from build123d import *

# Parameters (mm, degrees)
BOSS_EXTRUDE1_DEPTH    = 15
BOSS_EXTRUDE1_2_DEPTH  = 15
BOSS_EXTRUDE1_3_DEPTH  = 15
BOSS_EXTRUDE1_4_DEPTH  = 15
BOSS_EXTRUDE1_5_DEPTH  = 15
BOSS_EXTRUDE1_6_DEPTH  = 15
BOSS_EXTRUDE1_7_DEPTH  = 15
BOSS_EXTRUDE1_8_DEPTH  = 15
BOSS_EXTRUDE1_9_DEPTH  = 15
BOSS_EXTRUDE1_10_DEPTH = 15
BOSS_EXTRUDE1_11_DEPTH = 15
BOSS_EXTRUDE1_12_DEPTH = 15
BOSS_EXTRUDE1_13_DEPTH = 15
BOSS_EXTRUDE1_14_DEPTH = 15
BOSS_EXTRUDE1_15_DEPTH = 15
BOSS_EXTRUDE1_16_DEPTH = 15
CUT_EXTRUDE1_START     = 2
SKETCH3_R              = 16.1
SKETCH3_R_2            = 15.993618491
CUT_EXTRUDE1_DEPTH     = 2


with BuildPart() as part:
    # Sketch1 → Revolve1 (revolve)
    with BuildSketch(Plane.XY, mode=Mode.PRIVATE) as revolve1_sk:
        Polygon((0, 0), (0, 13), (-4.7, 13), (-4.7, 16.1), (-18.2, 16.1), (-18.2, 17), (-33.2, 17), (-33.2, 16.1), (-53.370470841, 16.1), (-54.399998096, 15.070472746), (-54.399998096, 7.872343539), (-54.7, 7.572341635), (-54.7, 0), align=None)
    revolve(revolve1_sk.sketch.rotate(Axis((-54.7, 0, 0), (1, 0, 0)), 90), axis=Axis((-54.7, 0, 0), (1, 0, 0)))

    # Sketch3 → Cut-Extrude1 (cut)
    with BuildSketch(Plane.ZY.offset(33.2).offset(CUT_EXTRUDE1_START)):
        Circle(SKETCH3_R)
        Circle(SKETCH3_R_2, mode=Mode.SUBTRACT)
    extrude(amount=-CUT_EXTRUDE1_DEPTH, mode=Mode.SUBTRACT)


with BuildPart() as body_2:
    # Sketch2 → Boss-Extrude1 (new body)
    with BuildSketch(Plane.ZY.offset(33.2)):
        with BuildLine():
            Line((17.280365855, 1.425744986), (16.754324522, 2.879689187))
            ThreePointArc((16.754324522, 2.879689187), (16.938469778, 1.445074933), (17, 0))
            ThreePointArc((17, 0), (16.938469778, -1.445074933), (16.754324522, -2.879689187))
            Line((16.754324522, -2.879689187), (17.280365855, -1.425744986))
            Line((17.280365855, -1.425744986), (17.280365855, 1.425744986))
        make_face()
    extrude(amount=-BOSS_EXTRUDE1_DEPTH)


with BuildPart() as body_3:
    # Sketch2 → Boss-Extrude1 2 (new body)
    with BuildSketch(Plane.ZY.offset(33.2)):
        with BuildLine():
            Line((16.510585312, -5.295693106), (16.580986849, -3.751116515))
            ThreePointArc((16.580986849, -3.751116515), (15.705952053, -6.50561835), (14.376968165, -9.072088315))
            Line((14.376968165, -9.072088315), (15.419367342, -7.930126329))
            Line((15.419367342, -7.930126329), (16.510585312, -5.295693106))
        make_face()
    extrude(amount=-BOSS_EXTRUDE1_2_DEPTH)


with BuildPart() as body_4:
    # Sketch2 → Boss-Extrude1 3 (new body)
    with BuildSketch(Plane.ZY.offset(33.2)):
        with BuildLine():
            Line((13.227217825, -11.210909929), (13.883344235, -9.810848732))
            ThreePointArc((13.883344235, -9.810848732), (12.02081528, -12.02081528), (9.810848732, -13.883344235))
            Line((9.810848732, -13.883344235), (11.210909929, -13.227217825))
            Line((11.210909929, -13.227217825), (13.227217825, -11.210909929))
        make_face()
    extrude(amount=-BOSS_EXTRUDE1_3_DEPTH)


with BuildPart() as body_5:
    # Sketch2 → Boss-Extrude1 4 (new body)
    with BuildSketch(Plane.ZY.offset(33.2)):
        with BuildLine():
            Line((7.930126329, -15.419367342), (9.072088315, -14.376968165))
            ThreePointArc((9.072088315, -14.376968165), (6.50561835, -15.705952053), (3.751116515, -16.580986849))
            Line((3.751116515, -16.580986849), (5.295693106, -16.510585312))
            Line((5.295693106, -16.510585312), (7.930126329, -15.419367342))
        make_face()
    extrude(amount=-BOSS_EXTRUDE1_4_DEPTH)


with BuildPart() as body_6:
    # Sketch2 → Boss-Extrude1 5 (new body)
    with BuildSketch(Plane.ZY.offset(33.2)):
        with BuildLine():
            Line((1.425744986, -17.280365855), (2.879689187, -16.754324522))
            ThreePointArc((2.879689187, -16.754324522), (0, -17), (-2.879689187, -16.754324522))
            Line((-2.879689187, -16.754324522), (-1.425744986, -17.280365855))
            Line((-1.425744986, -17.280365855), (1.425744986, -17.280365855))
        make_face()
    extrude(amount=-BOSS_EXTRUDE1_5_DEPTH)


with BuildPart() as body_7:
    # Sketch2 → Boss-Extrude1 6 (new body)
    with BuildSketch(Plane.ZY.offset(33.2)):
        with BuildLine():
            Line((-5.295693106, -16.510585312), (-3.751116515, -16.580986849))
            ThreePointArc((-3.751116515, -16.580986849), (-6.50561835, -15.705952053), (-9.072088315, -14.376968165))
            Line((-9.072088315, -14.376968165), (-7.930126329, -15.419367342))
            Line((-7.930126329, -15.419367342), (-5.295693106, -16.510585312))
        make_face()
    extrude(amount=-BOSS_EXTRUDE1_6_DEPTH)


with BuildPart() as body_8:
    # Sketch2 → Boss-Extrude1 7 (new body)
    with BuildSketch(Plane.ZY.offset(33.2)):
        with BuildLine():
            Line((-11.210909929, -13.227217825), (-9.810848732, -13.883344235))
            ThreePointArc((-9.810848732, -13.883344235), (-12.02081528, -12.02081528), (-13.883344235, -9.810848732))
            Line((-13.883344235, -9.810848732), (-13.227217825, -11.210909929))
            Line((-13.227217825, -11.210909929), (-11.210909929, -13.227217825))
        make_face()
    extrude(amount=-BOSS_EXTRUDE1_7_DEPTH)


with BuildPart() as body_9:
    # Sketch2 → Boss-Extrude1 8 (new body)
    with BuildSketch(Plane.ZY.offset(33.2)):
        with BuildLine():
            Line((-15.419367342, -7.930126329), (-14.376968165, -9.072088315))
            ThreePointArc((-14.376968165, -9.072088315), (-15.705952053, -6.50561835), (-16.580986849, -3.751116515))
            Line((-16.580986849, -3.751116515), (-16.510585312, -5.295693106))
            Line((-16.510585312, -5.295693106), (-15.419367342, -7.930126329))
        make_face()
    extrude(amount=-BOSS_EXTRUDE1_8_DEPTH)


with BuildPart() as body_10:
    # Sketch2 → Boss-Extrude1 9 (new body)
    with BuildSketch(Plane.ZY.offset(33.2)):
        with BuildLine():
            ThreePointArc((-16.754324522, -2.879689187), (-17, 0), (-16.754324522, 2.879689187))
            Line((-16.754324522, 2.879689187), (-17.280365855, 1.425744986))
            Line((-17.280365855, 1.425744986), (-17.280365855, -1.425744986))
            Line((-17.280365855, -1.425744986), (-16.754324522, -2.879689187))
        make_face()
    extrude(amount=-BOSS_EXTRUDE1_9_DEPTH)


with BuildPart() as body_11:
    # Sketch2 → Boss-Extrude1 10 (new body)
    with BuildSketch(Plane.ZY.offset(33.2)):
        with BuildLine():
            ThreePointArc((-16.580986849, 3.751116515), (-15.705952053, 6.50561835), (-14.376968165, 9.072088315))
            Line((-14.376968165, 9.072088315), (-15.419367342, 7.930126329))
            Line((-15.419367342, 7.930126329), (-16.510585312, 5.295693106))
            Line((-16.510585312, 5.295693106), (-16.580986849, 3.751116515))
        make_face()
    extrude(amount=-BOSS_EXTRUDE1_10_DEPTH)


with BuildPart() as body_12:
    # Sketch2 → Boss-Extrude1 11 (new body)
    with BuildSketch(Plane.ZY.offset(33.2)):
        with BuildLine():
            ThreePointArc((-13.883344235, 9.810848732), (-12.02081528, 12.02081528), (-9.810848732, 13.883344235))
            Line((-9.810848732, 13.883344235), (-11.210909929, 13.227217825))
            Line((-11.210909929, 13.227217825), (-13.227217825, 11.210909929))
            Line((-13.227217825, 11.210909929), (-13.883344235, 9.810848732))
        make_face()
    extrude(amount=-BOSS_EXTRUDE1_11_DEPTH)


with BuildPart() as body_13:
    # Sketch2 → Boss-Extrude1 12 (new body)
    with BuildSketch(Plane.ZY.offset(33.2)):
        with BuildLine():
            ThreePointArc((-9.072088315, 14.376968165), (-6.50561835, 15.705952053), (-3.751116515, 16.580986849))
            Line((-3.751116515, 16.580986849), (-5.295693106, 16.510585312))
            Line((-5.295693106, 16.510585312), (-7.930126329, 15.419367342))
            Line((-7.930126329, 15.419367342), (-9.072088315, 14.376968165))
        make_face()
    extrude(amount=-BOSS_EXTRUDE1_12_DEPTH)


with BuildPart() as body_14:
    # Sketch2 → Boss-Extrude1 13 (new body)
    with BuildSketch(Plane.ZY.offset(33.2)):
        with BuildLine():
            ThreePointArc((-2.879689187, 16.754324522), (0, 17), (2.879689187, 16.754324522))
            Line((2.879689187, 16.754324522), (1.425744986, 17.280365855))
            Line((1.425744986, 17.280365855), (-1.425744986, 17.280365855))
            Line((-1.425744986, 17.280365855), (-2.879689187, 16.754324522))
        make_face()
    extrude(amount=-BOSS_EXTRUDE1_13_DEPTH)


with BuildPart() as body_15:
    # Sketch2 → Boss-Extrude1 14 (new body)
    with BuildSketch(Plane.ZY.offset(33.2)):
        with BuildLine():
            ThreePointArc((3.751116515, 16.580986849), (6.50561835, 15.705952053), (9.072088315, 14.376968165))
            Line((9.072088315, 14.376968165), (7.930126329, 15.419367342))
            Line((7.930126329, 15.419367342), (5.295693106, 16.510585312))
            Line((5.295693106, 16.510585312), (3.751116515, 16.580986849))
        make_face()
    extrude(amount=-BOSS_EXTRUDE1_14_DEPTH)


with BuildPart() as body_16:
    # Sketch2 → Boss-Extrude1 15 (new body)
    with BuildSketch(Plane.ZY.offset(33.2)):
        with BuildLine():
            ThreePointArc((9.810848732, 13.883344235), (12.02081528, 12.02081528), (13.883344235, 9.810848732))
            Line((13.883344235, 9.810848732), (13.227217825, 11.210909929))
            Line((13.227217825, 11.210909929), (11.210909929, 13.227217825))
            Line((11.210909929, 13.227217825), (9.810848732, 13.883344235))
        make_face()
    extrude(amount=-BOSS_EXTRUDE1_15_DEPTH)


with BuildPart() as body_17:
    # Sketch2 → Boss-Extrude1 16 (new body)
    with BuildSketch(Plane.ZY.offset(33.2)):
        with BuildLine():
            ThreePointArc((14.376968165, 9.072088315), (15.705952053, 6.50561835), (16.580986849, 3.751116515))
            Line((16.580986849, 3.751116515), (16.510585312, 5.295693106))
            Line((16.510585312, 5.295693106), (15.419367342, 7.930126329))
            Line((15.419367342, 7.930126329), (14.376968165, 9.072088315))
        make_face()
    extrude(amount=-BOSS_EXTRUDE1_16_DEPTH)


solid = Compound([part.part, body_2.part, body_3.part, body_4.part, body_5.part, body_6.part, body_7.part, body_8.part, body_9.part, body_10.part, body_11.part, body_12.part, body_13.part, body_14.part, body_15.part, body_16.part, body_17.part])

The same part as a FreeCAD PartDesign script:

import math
import FreeCAD as App
import Part
import Sketcher
from FreeCAD import Vector
Q = App.Units.Quantity


def add_polygon(sketch, points):
    """Adds a closed chain of lines whose ends are joined by coincident constraints."""
    first, n = sketch.GeometryCount, len(points)
    for a, b in zip(points, points[1:] + points[:1]):
        sketch.addGeometry(Part.LineSegment(App.Vector(*a, 0), App.Vector(*b, 0)), False)
    for i in range(n):
        sketch.addConstraint(Sketcher.Constraint("Coincident", first + i, 2, first + (i + 1) % n, 1))

doc = App.newDocument("Part")
body = doc.addObject("PartDesign::Body", "Body")

sketch1 = body.newObject("Sketcher::SketchObject", "Sketch")
sketch1.AttachmentSupport = (doc.getObject("XY_Plane"), [""])
sketch1.MapMode = "FlatFace"
add_polygon(sketch1, [(0, 0), (0, 13), (-4.7, 13), (-4.7, 16.1), (-18.2, 16.1), (-18.2, 17), (-33.2, 17), (-33.2, 16.1), (-53.37, 16.1), (-54.4, 15.07), (-54.4, 7.87), (-54.7, 7.57), (-54.7, 0)])
sketch1.addConstraint([
    Sketcher.Constraint("Vertical", 0),
    Sketcher.Constraint("Horizontal", 1),
    Sketcher.Constraint("Vertical", 2),
    Sketcher.Constraint("Horizontal", 3),
    Sketcher.Constraint("Vertical", 4),
    Sketcher.Constraint("Horizontal", 5),
    Sketcher.Constraint("Vertical", 6),
    Sketcher.Constraint("Horizontal", 7),
    Sketcher.Constraint("Vertical", 9),
    Sketcher.Constraint("Vertical", 11),
    Sketcher.Constraint("Horizontal", 12),
    Sketcher.Constraint("Coincident", 12, 2, -1, 1),
    Sketcher.Constraint("Parallel", 8, 10),
    Sketcher.Constraint("Horizontal", 3, 2, 6, 2),
    Sketcher.Constraint("DistanceX", 5, 2, 5, 1, Q("15 mm")),
    Sketcher.Constraint("DistanceY", 0, 1, 0, 2, Q("13 mm")),
    Sketcher.Constraint("Angle", 8, Q("-135 deg")),
    Sketcher.Constraint("DistanceX", 1, 2, 1, 1, Q("4.7 mm")),
    Sketcher.Constraint("DistanceX", 3, 2, 3, 1, Q("13.5 mm")),
    Sketcher.Constraint("DistanceX", 12, 1, 12, 2, Q("54.7 mm")),
    Sketcher.Constraint("DistanceY", 2, 1, 2, 2, Q("3.1 mm")),
    Sketcher.Constraint("DistanceY", 4, 1, 4, 2, Q("0.9 mm")),
    Sketcher.Constraint("DistanceX", 8, 2, -1, 1, Q("54.399998 mm")),
    Sketcher.Constraint("DistanceX", 7, 2, 7, 1, Q("20.170471 mm")),
    Sketcher.Constraint("DistanceY", 9, 2, 9, 1, Q("7.198129 mm")),
])
revolution = body.newObject("PartDesign::Revolution", "Revolution")
revolution.Profile = sketch1
revolution.ReferenceAxis = (sketch1, ["H_Axis"])
revolution.Angle = 360

sketch2 = body.newObject("Sketcher::SketchObject", "Sketch001")
sketch2.AttachmentSupport = (doc.getObject("YZ_Plane"), [""])
sketch2.MapMode = "FlatFace"
sketch2.AttachmentOffset = App.Placement(Vector(0, 0, -35.2), App.Rotation())
sketch2.addGeometry([
    Part.Circle(Vector(0, 0, 0), Vector(0, 0, 1), 16),
    Part.Circle(Vector(0, 0, 0), Vector(0, 0, 1), 16),
], False)
sketch2.addConstraint([
    Sketcher.Constraint("Coincident", 0, 3, -1, 1),
    Sketcher.Constraint("Coincident", 1, 3, -1, 1),
    Sketcher.Constraint("Diameter", 0, Q("32.2 mm")),
    Sketcher.Constraint("Diameter", 1, Q("31.987237 mm")),
])
pocket1 = body.newObject("PartDesign::Pocket", "Pocket")
pocket1.Profile = sketch2
pocket1.Length = 2
pocket1.Reversed = True
body2 = doc.addObject("PartDesign::Body", "Body001")

sketch3 = body2.newObject("Sketcher::SketchObject", "Sketch002")
sketch3.AttachmentSupport = (doc.getObject("YZ_Plane001"), [""])
sketch3.MapMode = "FlatFace"
sketch3.AttachmentOffset = App.Placement(Vector(0, 0, -33.2), App.Rotation())
sketch3.addGeometry([
    Part.LineSegment(Vector(1.4, 17.3, 0), Vector(2.9, 16.8, 0)),
    Part.ArcOfCircle(Part.Circle(Vector(0, 0, 0), Vector(0, 0, 1), 17), math.radians(80.25), math.radians(90)),
    Part.ArcOfCircle(Part.Circle(Vector(0, 0, 0), Vector(0, 0, 1), 17), math.radians(90), math.radians(99.75)),
    Part.LineSegment(Vector(-2.9, 16.8, 0), Vector(-1.4, 17.3, 0)),
    Part.LineSegment(Vector(-1.4, 17.3, 0), Vector(1.4, 17.3, 0)),
], False)
sketch3.addConstraint([
    Sketcher.Constraint("Coincident", 0, 2, 1, 1),
    Sketcher.Constraint("Tangent", 1, 2, 2, 1),
    Sketcher.Constraint("Coincident", 2, 2, 3, 1),
    Sketcher.Constraint("Coincident", 3, 2, 4, 1),
    Sketcher.Constraint("Coincident", 4, 2, 0, 1),
    Sketcher.Constraint("Horizontal", 4),
    Sketcher.Constraint("Coincident", 1, 3, -1, 1),
    Sketcher.Constraint("Equal", 1, 2),
    Sketcher.Constraint("PointOnObject", 1, 2, -2),
    Sketcher.Constraint("Horizontal", 0, 2, 2, 2),
    Sketcher.Constraint("Equal", 0, 3),
    Sketcher.Constraint("Radius", 1, Q("17 mm")),
    Sketcher.Constraint("DistanceX", 4, 1, 4, 2, Q("2.85149 mm")),
    Sketcher.Constraint("Distance", 0, Q("1.54618 mm")),
    Sketcher.Constraint("DistanceX", -1, 1, 0, 2, Q("2.879689 mm")),
])
pad1 = body2.newObject("PartDesign::Pad", "Pad")
pad1.Profile = sketch3
pad1.Length = 15
body3 = doc.addObject("PartDesign::Body", "Body002")

sketch4 = body3.newObject("Sketcher::SketchObject", "Sketch003")
sketch4.AttachmentSupport = (doc.getObject("YZ_Plane002"), [""])
sketch4.MapMode = "FlatFace"
sketch4.AttachmentOffset = App.Placement(Vector(0, 0, -33.2), App.Rotation())
sketch4.addGeometry([
    Part.LineSegment(Vector(-5.3, 16.5, 0), Vector(-3.8, 16.6, 0)),
    Part.ArcOfCircle(Part.Circle(Vector(0, 0, 0), Vector(0, 0, 1), 17), math.radians(102.75), math.radians(122.25)),
    Part.LineSegment(Vector(-9.1, 14.4, 0), Vector(-7.9, 15.4, 0)),
    Part.LineSegment(Vector(-7.9, 15.4, 0), Vector(-5.3, 16.5, 0)),
], False)
sketch4.addConstraint([
    Sketcher.Constraint("Coincident", 0, 2, 1, 1),
    Sketcher.Constraint("Coincident", 1, 2, 2, 1),
    Sketcher.Constraint("Coincident", 2, 2, 3, 1),
    Sketcher.Constraint("Coincident", 3, 2, 0, 1),
    Sketcher.Constraint("Coincident", 1, 3, -1, 1),
    Sketcher.Constraint("Equal", 0, 2),
    Sketcher.Constraint("Radius", 1, Q("17 mm")),
    Sketcher.Constraint("Angle", 3, Q("22.5 deg")),
    Sketcher.Constraint("DistanceY", 1, 2, 2, 2, Q("1.042399 mm")),
    Sketcher.Constraint("DistanceY", 3, 2, 0, 2, Q("0.070402 mm")),
    Sketcher.Constraint("Distance", 0, Q("1.54618 mm")),
    Sketcher.Constraint("Distance", 3, Q("2.85149 mm")),
])
pad2 = body3.newObject("PartDesign::Pad", "Pad001")
pad2.Profile = sketch4
pad2.Length = 15
body4 = doc.addObject("PartDesign::Body", "Body003")

sketch5 = body4.newObject("Sketcher::SketchObject", "Sketch004")
sketch5.AttachmentSupport = (doc.getObject("YZ_Plane003"), [""])
sketch5.MapMode = "FlatFace"
sketch5.AttachmentOffset = App.Placement(Vector(0, 0, -33.2), App.Rotation())
sketch5.addGeometry([
    Part.LineSegment(Vector(-11.2, 13.2, 0), Vector(-9.8, 13.9, 0)),
    Part.ArcOfCircle(Part.Circle(Vector(0, 0, 0), Vector(0, 0, 1), 17), math.radians(125.25), math.radians(144.75)),
    Part.LineSegment(Vector(-13.9, 9.8, 0), Vector(-13.2, 11.2, 0)),
    Part.LineSegment(Vector(-13.2, 11.2, 0), Vector(-11.2, 13.2, 0)),
], False)
sketch5.addConstraint([
    Sketcher.Constraint("Coincident", 0, 2, 1, 1),
    Sketcher.Constraint("Coincident", 1, 2, 2, 1),
    Sketcher.Constraint("Coincident", 2, 2, 3, 1),
    Sketcher.Constraint("Coincident", 3, 2, 0, 1),
    Sketcher.Constraint("Coincident", 1, 3, -1, 1),
    Sketcher.Constraint("Equal", 0, 2),
    Sketcher.Constraint("Radius", 1, Q("17 mm")),
    Sketcher.Constraint("Angle", 3, Q("45 deg")),
    Sketcher.Constraint("Distance", 0, Q("1.54618 mm")),
    Sketcher.Constraint("Distance", 3, Q("2.85149 mm")),
    Sketcher.Constraint("DistanceX", 0, 2, -1, 1, Q("9.810849 mm")),
    Sketcher.Constraint("DistanceY", -1, 1, 1, 2, Q("9.810849 mm")),
])
pad3 = body4.newObject("PartDesign::Pad", "Pad002")
pad3.Profile = sketch5
pad3.Length = 15
body5 = doc.addObject("PartDesign::Body", "Body004")

sketch6 = body5.newObject("Sketcher::SketchObject", "Sketch005")
sketch6.AttachmentSupport = (doc.getObject("YZ_Plane004"), [""])
sketch6.MapMode = "FlatFace"
sketch6.AttachmentOffset = App.Placement(Vector(0, 0, -33.2), App.Rotation())
sketch6.addGeometry([
    Part.LineSegment(Vector(-15.4, 7.9, 0), Vector(-14.4, 9.1, 0)),
    Part.ArcOfCircle(Part.Circle(Vector(0, 0, 0), Vector(0, 0, 1), 17), math.radians(147.75), math.radians(167.25)),
    Part.LineSegment(Vector(-16.6, 3.8, 0), Vector(-16.5, 5.3, 0)),
    Part.LineSegment(Vector(-16.5, 5.3, 0), Vector(-15.4, 7.9, 0)),
], False)
sketch6.addConstraint([
    Sketcher.Constraint("Coincident", 0, 2, 1, 1),
    Sketcher.Constraint("Coincident", 1, 2, 2, 1),
    Sketcher.Constraint("Coincident", 2, 2, 3, 1),
    Sketcher.Constraint("Coincident", 3, 2, 0, 1),
    Sketcher.Constraint("Coincident", 1, 3, -1, 1),
    Sketcher.Constraint("Equal", 0, 2),
    Sketcher.Constraint("Radius", 1, Q("17 mm")),
    Sketcher.Constraint("Angle", 3, Q("67.5 deg")),
    Sketcher.Constraint("DistanceX", 1, 2, 2, 2, Q("0.070402 mm")),
    Sketcher.Constraint("DistanceX", 3, 2, 0, 2, Q("1.042399 mm")),
    Sketcher.Constraint("Distance", 0, Q("1.54618 mm")),
    Sketcher.Constraint("Distance", 3, Q("2.85149 mm")),
])
pad4 = body5.newObject("PartDesign::Pad", "Pad003")
pad4.Profile = sketch6
pad4.Length = 15
body6 = doc.addObject("PartDesign::Body", "Body005")

sketch7 = body6.newObject("Sketcher::SketchObject", "Sketch006")
sketch7.AttachmentSupport = (doc.getObject("YZ_Plane005"), [""])
sketch7.MapMode = "FlatFace"
sketch7.AttachmentOffset = App.Placement(Vector(0, 0, -33.2), App.Rotation())
sketch7.addGeometry([
    Part.LineSegment(Vector(-17.3, 1.4, 0), Vector(-16.8, 2.9, 0)),
    Part.ArcOfCircle(Part.Circle(Vector(0, 0, 0), Vector(0, 0, 1), 17), math.radians(170.25), math.radians(189.75)),
    Part.LineSegment(Vector(-16.8, -2.9, 0), Vector(-17.3, -1.4, 0)),
    Part.LineSegment(Vector(-17.3, -1.4, 0), Vector(-17.3, 1.4, 0)),
], False)
sketch7.addConstraint([
    Sketcher.Constraint("Coincident", 0, 2, 1, 1),
    Sketcher.Constraint("Coincident", 1, 2, 2, 1),
    Sketcher.Constraint("Coincident", 2, 2, 3, 1),
    Sketcher.Constraint("Coincident", 3, 2, 0, 1),
    Sketcher.Constraint("Vertical", 3),
    Sketcher.Constraint("Coincident", 1, 3, -1, 1),
    Sketcher.Constraint("Vertical", 0, 2, 1, 2),
    Sketcher.Constraint("Equal", 0, 2),
    Sketcher.Constraint("Radius", 1, Q("17 mm")),
    Sketcher.Constraint("DistanceY", 3, 1, 3, 2, Q("2.85149 mm")),
    Sketcher.Constraint("Distance", 0, Q("1.54618 mm")),
    Sketcher.Constraint("DistanceY", -1, 1, 0, 2, Q("2.879689 mm")),
])
pad5 = body6.newObject("PartDesign::Pad", "Pad004")
pad5.Profile = sketch7
pad5.Length = 15
body7 = doc.addObject("PartDesign::Body", "Body006")

sketch8 = body7.newObject("Sketcher::SketchObject", "Sketch007")
sketch8.AttachmentSupport = (doc.getObject("YZ_Plane006"), [""])
sketch8.MapMode = "FlatFace"
sketch8.AttachmentOffset = App.Placement(Vector(0, 0, -33.2), App.Rotation())
sketch8.addGeometry([
    Part.LineSegment(Vector(-16.5, -5.3, 0), Vector(-16.6, -3.8, 0)),
    Part.ArcOfCircle(Part.Circle(Vector(0, 0, 0), Vector(0, 0, 1), 17), math.radians(-167.25), math.radians(-147.75)),
    Part.LineSegment(Vector(-14.4, -9.1, 0), Vector(-15.4, -7.9, 0)),
    Part.LineSegment(Vector(-15.4, -7.9, 0), Vector(-16.5, -5.3, 0)),
], False)
sketch8.addConstraint([
    Sketcher.Constraint("Coincident", 0, 2, 1, 1),
    Sketcher.Constraint("Coincident", 1, 2, 2, 1),
    Sketcher.Constraint("Coincident", 2, 2, 3, 1),
    Sketcher.Constraint("Coincident", 3, 2, 0, 1),
    Sketcher.Constraint("Coincident", 1, 3, -1, 1),
    Sketcher.Constraint("Equal", 0, 2),
    Sketcher.Constraint("Radius", 1, Q("17 mm")),
    Sketcher.Constraint("Angle", 3, Q("112.5 deg")),
    Sketcher.Constraint("DistanceX", 2, 2, 1, 2, Q("1.042399 mm")),
    Sketcher.Constraint("DistanceX", 0, 2, 3, 2, Q("0.070402 mm")),
    Sketcher.Constraint("Distance", 0, Q("1.54618 mm")),
    Sketcher.Constraint("Distance", 3, Q("2.85149 mm")),
])
pad6 = body7.newObject("PartDesign::Pad", "Pad005")
pad6.Profile = sketch8
pad6.Length = 15
body8 = doc.addObject("PartDesign::Body", "Body007")

sketch9 = body8.newObject("Sketcher::SketchObject", "Sketch008")
sketch9.AttachmentSupport = (doc.getObject("YZ_Plane007"), [""])
sketch9.MapMode = "FlatFace"
sketch9.AttachmentOffset = App.Placement(Vector(0, 0, -33.2), App.Rotation())
sketch9.addGeometry([
    Part.LineSegment(Vector(-13.2, -11.2, 0), Vector(-13.9, -9.8, 0)),
    Part.ArcOfCircle(Part.Circle(Vector(0, 0, 0), Vector(0, 0, 1), 17), math.radians(-144.75), math.radians(-125.25)),
    Part.LineSegment(Vector(-9.8, -13.9, 0), Vector(-11.2, -13.2, 0)),
    Part.LineSegment(Vector(-11.2, -13.2, 0), Vector(-13.2, -11.2, 0)),
], False)
sketch9.addConstraint([
    Sketcher.Constraint("Coincident", 0, 2, 1, 1),
    Sketcher.Constraint("Coincident", 1, 2, 2, 1),
    Sketcher.Constraint("Coincident", 2, 2, 3, 1),
    Sketcher.Constraint("Coincident", 3, 2, 0, 1),
    Sketcher.Constraint("Coincident", 1, 3, -1, 1),
    Sketcher.Constraint("Equal", 0, 2),
    Sketcher.Constraint("Radius", 1, Q("17 mm")),
    Sketcher.Constraint("Angle", 3, Q("135 deg")),
    Sketcher.Constraint("Distance", 0, Q("1.54618 mm")),
    Sketcher.Constraint("Distance", 3, Q("2.85149 mm")),
    Sketcher.Constraint("DistanceY", 0, 2, -1, 1, Q("9.810849 mm")),
    Sketcher.Constraint("DistanceX", 1, 2, -1, 1, Q("9.810849 mm")),
])
pad7 = body8.newObject("PartDesign::Pad", "Pad006")
pad7.Profile = sketch9
pad7.Length = 15
body9 = doc.addObject("PartDesign::Body", "Body008")

sketch10 = body9.newObject("Sketcher::SketchObject", "Sketch009")
sketch10.AttachmentSupport = (doc.getObject("YZ_Plane008"), [""])
sketch10.MapMode = "FlatFace"
sketch10.AttachmentOffset = App.Placement(Vector(0, 0, -33.2), App.Rotation())
sketch10.addGeometry([
    Part.LineSegment(Vector(-7.9, -15.4, 0), Vector(-9.1, -14.4, 0)),
    Part.ArcOfCircle(Part.Circle(Vector(0, 0, 0), Vector(0, 0, 1), 17), math.radians(-122.25), math.radians(-102.75)),
    Part.LineSegment(Vector(-3.8, -16.6, 0), Vector(-5.3, -16.5, 0)),
    Part.LineSegment(Vector(-5.3, -16.5, 0), Vector(-7.9, -15.4, 0)),
], False)
sketch10.addConstraint([
    Sketcher.Constraint("Coincident", 0, 2, 1, 1),
    Sketcher.Constraint("Coincident", 1, 2, 2, 1),
    Sketcher.Constraint("Coincident", 2, 2, 3, 1),
    Sketcher.Constraint("Coincident", 3, 2, 0, 1),
    Sketcher.Constraint("Coincident", 1, 3, -1, 1),
    Sketcher.Constraint("Equal", 0, 2),
    Sketcher.Constraint("Radius", 1, Q("17 mm")),
    Sketcher.Constraint("Angle", 3, Q("157.5 deg")),
    Sketcher.Constraint("DistanceY", 1, 2, 2, 2, Q("0.070402 mm")),
    Sketcher.Constraint("DistanceY", 3, 2, 0, 2, Q("1.042399 mm")),
    Sketcher.Constraint("Distance", 0, Q("1.54618 mm")),
    Sketcher.Constraint("Distance", 3, Q("2.85149 mm")),
])
pad8 = body9.newObject("PartDesign::Pad", "Pad007")
pad8.Profile = sketch10
pad8.Length = 15
body10 = doc.addObject("PartDesign::Body", "Body009")

sketch11 = body10.newObject("Sketcher::SketchObject", "Sketch010")
sketch11.AttachmentSupport = (doc.getObject("YZ_Plane009"), [""])
sketch11.MapMode = "FlatFace"
sketch11.AttachmentOffset = App.Placement(Vector(0, 0, -33.2), App.Rotation())
sketch11.addGeometry([
    Part.ArcOfCircle(Part.Circle(Vector(0, 0, 0), Vector(0, 0, 1), 17), math.radians(-99.75), math.radians(-80.25)),
    Part.LineSegment(Vector(2.9, -16.8, 0), Vector(1.4, -17.3, 0)),
    Part.LineSegment(Vector(1.4, -17.3, 0), Vector(-1.4, -17.3, 0)),
    Part.LineSegment(Vector(-1.4, -17.3, 0), Vector(-2.9, -16.8, 0)),
], False)
sketch11.addConstraint([
    Sketcher.Constraint("Coincident", 0, 2, 1, 1),
    Sketcher.Constraint("Coincident", 1, 2, 2, 1),
    Sketcher.Constraint("Coincident", 2, 2, 3, 1),
    Sketcher.Constraint("Coincident", 3, 2, 0, 1),
    Sketcher.Constraint("Horizontal", 2),
    Sketcher.Constraint("Coincident", 0, 3, -1, 1),
    Sketcher.Constraint("Horizontal", 0, 2, 3, 2),
    Sketcher.Constraint("Equal", 1, 3),
    Sketcher.Constraint("Radius", 0, Q("17 mm")),
    Sketcher.Constraint("DistanceX", 2, 2, 2, 1, Q("2.85149 mm")),
    Sketcher.Constraint("Distance", 1, Q("1.54618 mm")),
    Sketcher.Constraint("DistanceX", -1, 1, 0, 2, Q("2.879689 mm")),
])
pad9 = body10.newObject("PartDesign::Pad", "Pad008")
pad9.Profile = sketch11
pad9.Length = 15
body11 = doc.addObject("PartDesign::Body", "Body010")

sketch12 = body11.newObject("Sketcher::SketchObject", "Sketch011")
sketch12.AttachmentSupport = (doc.getObject("YZ_Plane010"), [""])
sketch12.MapMode = "FlatFace"
sketch12.AttachmentOffset = App.Placement(Vector(0, 0, -33.2), App.Rotation())
sketch12.addGeometry([
    Part.ArcOfCircle(Part.Circle(Vector(0, 0, 0), Vector(0, 0, 1), 17), math.radians(-77.25), math.radians(-57.75)),
    Part.LineSegment(Vector(9.1, -14.4, 0), Vector(7.9, -15.4, 0)),
    Part.LineSegment(Vector(7.9, -15.4, 0), Vector(5.3, -16.5, 0)),
    Part.LineSegment(Vector(5.3, -16.5, 0), Vector(3.8, -16.6, 0)),
], False)
sketch12.addConstraint([
    Sketcher.Constraint("Coincident", 0, 2, 1, 1),
    Sketcher.Constraint("Coincident", 1, 2, 2, 1),
    Sketcher.Constraint("Coincident", 2, 2, 3, 1),
    Sketcher.Constraint("Coincident", 3, 2, 0, 1),
    Sketcher.Constraint("Coincident", 0, 3, -1, 1),
    Sketcher.Constraint("Equal", 1, 3),
    Sketcher.Constraint("Radius", 0, Q("17 mm")),
    Sketcher.Constraint("Angle", 2, Q("-157.5 deg")),
    Sketcher.Constraint("DistanceY", 1, 2, 0, 2, Q("1.042399 mm")),
    Sketcher.Constraint("DistanceY", 3, 2, 2, 2, Q("0.070402 mm")),
    Sketcher.Constraint("Distance", 1, Q("1.54618 mm")),
    Sketcher.Constraint("Distance", 2, Q("2.85149 mm")),
])
pad10 = body11.newObject("PartDesign::Pad", "Pad009")
pad10.Profile = sketch12
pad10.Length = 15
body12 = doc.addObject("PartDesign::Body", "Body011")

sketch13 = body12.newObject("Sketcher::SketchObject", "Sketch012")
sketch13.AttachmentSupport = (doc.getObject("YZ_Plane011"), [""])
sketch13.MapMode = "FlatFace"
sketch13.AttachmentOffset = App.Placement(Vector(0, 0, -33.2), App.Rotation())
sketch13.addGeometry([
    Part.ArcOfCircle(Part.Circle(Vector(0, 0, 0), Vector(0, 0, 1), 17), math.radians(-54.75), math.radians(-35.25)),
    Part.LineSegment(Vector(13.9, -9.8, 0), Vector(13.2, -11.2, 0)),
    Part.LineSegment(Vector(13.2, -11.2, 0), Vector(11.2, -13.2, 0)),
    Part.LineSegment(Vector(11.2, -13.2, 0), Vector(9.8, -13.9, 0)),
], False)
sketch13.addConstraint([
    Sketcher.Constraint("Coincident", 0, 2, 1, 1),
    Sketcher.Constraint("Coincident", 1, 2, 2, 1),
    Sketcher.Constraint("Coincident", 2, 2, 3, 1),
    Sketcher.Constraint("Coincident", 3, 2, 0, 1),
    Sketcher.Constraint("Coincident", 0, 3, -1, 1),
    Sketcher.Constraint("Equal", 1, 3),
    Sketcher.Constraint("Radius", 0, Q("17 mm")),
    Sketcher.Constraint("Angle", 2, Q("-135 deg")),
    Sketcher.Constraint("Distance", 1, Q("1.54618 mm")),
    Sketcher.Constraint("Distance", 2, Q("2.85149 mm")),
    Sketcher.Constraint("DistanceY", 0, 2, -1, 1, Q("9.810849 mm")),
    Sketcher.Constraint("DistanceY", 1, 2, -1, 1, Q("11.21091 mm")),
])
pad11 = body12.newObject("PartDesign::Pad", "Pad010")
pad11.Profile = sketch13
pad11.Length = 15
body13 = doc.addObject("PartDesign::Body", "Body012")

sketch14 = body13.newObject("Sketcher::SketchObject", "Sketch013")
sketch14.AttachmentSupport = (doc.getObject("YZ_Plane012"), [""])
sketch14.MapMode = "FlatFace"
sketch14.AttachmentOffset = App.Placement(Vector(0, 0, -33.2), App.Rotation())
sketch14.addGeometry([
    Part.ArcOfCircle(Part.Circle(Vector(0, 0, 0), Vector(0, 0, 1), 17), math.radians(-32.25), math.radians(-12.75)),
    Part.LineSegment(Vector(16.6, -3.8, 0), Vector(16.5, -5.3, 0)),
    Part.LineSegment(Vector(16.5, -5.3, 0), Vector(15.4, -7.9, 0)),
    Part.LineSegment(Vector(15.4, -7.9, 0), Vector(14.4, -9.1, 0)),
], False)
sketch14.addConstraint([
    Sketcher.Constraint("Coincident", 0, 2, 1, 1),
    Sketcher.Constraint("Coincident", 1, 2, 2, 1),
    Sketcher.Constraint("Coincident", 2, 2, 3, 1),
    Sketcher.Constraint("Coincident", 3, 2, 0, 1),
    Sketcher.Constraint("Coincident", 0, 3, -1, 1),
    Sketcher.Constraint("Equal", 1, 3),
    Sketcher.Constraint("Radius", 0, Q("17 mm")),
    Sketcher.Constraint("Angle", 2, Q("-112.5 deg")),
    Sketcher.Constraint("DistanceX", 1, 2, 0, 2, Q("0.070402 mm")),
    Sketcher.Constraint("DistanceX", 3, 2, 2, 2, Q("1.042399 mm")),
    Sketcher.Constraint("Distance", 1, Q("1.54618 mm")),
    Sketcher.Constraint("Distance", 2, Q("2.85149 mm")),
])
pad12 = body13.newObject("PartDesign::Pad", "Pad011")
pad12.Profile = sketch14
pad12.Length = 15
body14 = doc.addObject("PartDesign::Body", "Body013")

sketch15 = body14.newObject("Sketcher::SketchObject", "Sketch014")
sketch15.AttachmentSupport = (doc.getObject("YZ_Plane013"), [""])
sketch15.MapMode = "FlatFace"
sketch15.AttachmentOffset = App.Placement(Vector(0, 0, -33.2), App.Rotation())
sketch15.addGeometry([
    Part.ArcOfCircle(Part.Circle(Vector(0, 0, 0), Vector(0, 0, 1), 17), math.radians(-9.75), math.radians(9.75)),
    Part.LineSegment(Vector(16.8, 2.9, 0), Vector(17.3, 1.4, 0)),
    Part.LineSegment(Vector(17.3, 1.4, 0), Vector(17.3, -1.4, 0)),
    Part.LineSegment(Vector(17.3, -1.4, 0), Vector(16.8, -2.9, 0)),
], False)
sketch15.addConstraint([
    Sketcher.Constraint("Coincident", 0, 2, 1, 1),
    Sketcher.Constraint("Coincident", 1, 2, 2, 1),
    Sketcher.Constraint("Coincident", 2, 2, 3, 1),
    Sketcher.Constraint("Coincident", 3, 2, 0, 1),
    Sketcher.Constraint("Vertical", 2),
    Sketcher.Constraint("Coincident", 0, 3, -1, 1),
    Sketcher.Constraint("Vertical", 0, 2, 3, 2),
    Sketcher.Constraint("Equal", 1, 3),
    Sketcher.Constraint("Radius", 0, Q("17 mm")),
    Sketcher.Constraint("DistanceY", 2, 2, 2, 1, Q("2.85149 mm")),
    Sketcher.Constraint("Distance", 1, Q("1.54618 mm")),
    Sketcher.Constraint("DistanceY", -1, 1, 0, 2, Q("2.879689 mm")),
])
pad13 = body14.newObject("PartDesign::Pad", "Pad012")
pad13.Profile = sketch15
pad13.Length = 15
body15 = doc.addObject("PartDesign::Body", "Body014")

sketch16 = body15.newObject("Sketcher::SketchObject", "Sketch015")
sketch16.AttachmentSupport = (doc.getObject("YZ_Plane014"), [""])
sketch16.MapMode = "FlatFace"
sketch16.AttachmentOffset = App.Placement(Vector(0, 0, -33.2), App.Rotation())
sketch16.addGeometry([
    Part.ArcOfCircle(Part.Circle(Vector(0, 0, 0), Vector(0, 0, 1), 17), math.radians(12.75), math.radians(32.25)),
    Part.LineSegment(Vector(14.4, 9.1, 0), Vector(15.4, 7.9, 0)),
    Part.LineSegment(Vector(15.4, 7.9, 0), Vector(16.5, 5.3, 0)),
    Part.LineSegment(Vector(16.5, 5.3, 0), Vector(16.6, 3.8, 0)),
], False)
sketch16.addConstraint([
    Sketcher.Constraint("Coincident", 0, 2, 1, 1),
    Sketcher.Constraint("Coincident", 1, 2, 2, 1),
    Sketcher.Constraint("Coincident", 2, 2, 3, 1),
    Sketcher.Constraint("Coincident", 3, 2, 0, 1),
    Sketcher.Constraint("Coincident", 0, 3, -1, 1),
    Sketcher.Constraint("Equal", 1, 3),
    Sketcher.Constraint("Radius", 0, Q("17 mm")),
    Sketcher.Constraint("Angle", 2, Q("-67.5 deg")),
    Sketcher.Constraint("DistanceX", 0, 2, 1, 2, Q("1.042399 mm")),
    Sketcher.Constraint("DistanceX", 2, 2, 3, 2, Q("0.070402 mm")),
    Sketcher.Constraint("Distance", 1, Q("1.54618 mm")),
    Sketcher.Constraint("Distance", 2, Q("2.85149 mm")),
])
pad14 = body15.newObject("PartDesign::Pad", "Pad013")
pad14.Profile = sketch16
pad14.Length = 15
body16 = doc.addObject("PartDesign::Body", "Body015")

sketch17 = body16.newObject("Sketcher::SketchObject", "Sketch016")
sketch17.AttachmentSupport = (doc.getObject("YZ_Plane015"), [""])
sketch17.MapMode = "FlatFace"
sketch17.AttachmentOffset = App.Placement(Vector(0, 0, -33.2), App.Rotation())
sketch17.addGeometry([
    Part.ArcOfCircle(Part.Circle(Vector(0, 0, 0), Vector(0, 0, 1), 17), math.radians(35.25), math.radians(54.75)),
    Part.LineSegment(Vector(9.8, 13.9, 0), Vector(11.2, 13.2, 0)),
    Part.LineSegment(Vector(11.2, 13.2, 0), Vector(13.2, 11.2, 0)),
    Part.LineSegment(Vector(13.2, 11.2, 0), Vector(13.9, 9.8, 0)),
], False)
sketch17.addConstraint([
    Sketcher.Constraint("Coincident", 0, 2, 1, 1),
    Sketcher.Constraint("Coincident", 1, 2, 2, 1),
    Sketcher.Constraint("Coincident", 2, 2, 3, 1),
    Sketcher.Constraint("Coincident", 3, 2, 0, 1),
    Sketcher.Constraint("Coincident", 0, 3, -1, 1),
    Sketcher.Constraint("Equal", 1, 3),
    Sketcher.Constraint("Radius", 0, Q("17 mm")),
    Sketcher.Constraint("Angle", 2, Q("-45 deg")),
    Sketcher.Constraint("Distance", 1, Q("1.54618 mm")),
    Sketcher.Constraint("Distance", 2, Q("2.85149 mm")),
    Sketcher.Constraint("DistanceX", -1, 1, 0, 2, Q("9.810849 mm")),
    Sketcher.Constraint("DistanceX", -1, 1, 1, 2, Q("11.21091 mm")),
])
pad15 = body16.newObject("PartDesign::Pad", "Pad014")
pad15.Profile = sketch17
pad15.Length = 15
body17 = doc.addObject("PartDesign::Body", "Body016")

sketch18 = body17.newObject("Sketcher::SketchObject", "Sketch017")
sketch18.AttachmentSupport = (doc.getObject("YZ_Plane016"), [""])
sketch18.MapMode = "FlatFace"
sketch18.AttachmentOffset = App.Placement(Vector(0, 0, -33.2), App.Rotation())
sketch18.addGeometry([
    Part.ArcOfCircle(Part.Circle(Vector(0, 0, 0), Vector(0, 0, 1), 17), math.radians(57.75), math.radians(77.25)),
    Part.LineSegment(Vector(3.8, 16.6, 0), Vector(5.3, 16.5, 0)),
    Part.LineSegment(Vector(5.3, 16.5, 0), Vector(7.9, 15.4, 0)),
    Part.LineSegment(Vector(7.9, 15.4, 0), Vector(9.1, 14.4, 0)),
], False)
sketch18.addConstraint([
    Sketcher.Constraint("Coincident", 0, 2, 1, 1),
    Sketcher.Constraint("Coincident", 1, 2, 2, 1),
    Sketcher.Constraint("Coincident", 2, 2, 3, 1),
    Sketcher.Constraint("Coincident", 3, 2, 0, 1),
    Sketcher.Constraint("Coincident", 0, 3, -1, 1),
    Sketcher.Constraint("Equal", 1, 3),
    Sketcher.Constraint("Radius", 0, Q("17 mm")),
    Sketcher.Constraint("Angle", 2, Q("-22.5 deg")),
    Sketcher.Constraint("DistanceY", 1, 2, 0, 2, Q("0.070402 mm")),
    Sketcher.Constraint("DistanceY", 3, 2, 2, 2, Q("1.042399 mm")),
    Sketcher.Constraint("Distance", 1, Q("1.54618 mm")),
    Sketcher.Constraint("Distance", 2, Q("2.85149 mm")),
])
pad16 = body17.newObject("PartDesign::Pad", "Pad015")
pad16.Profile = sketch18
pad16.Length = 15

doc.recompute()
